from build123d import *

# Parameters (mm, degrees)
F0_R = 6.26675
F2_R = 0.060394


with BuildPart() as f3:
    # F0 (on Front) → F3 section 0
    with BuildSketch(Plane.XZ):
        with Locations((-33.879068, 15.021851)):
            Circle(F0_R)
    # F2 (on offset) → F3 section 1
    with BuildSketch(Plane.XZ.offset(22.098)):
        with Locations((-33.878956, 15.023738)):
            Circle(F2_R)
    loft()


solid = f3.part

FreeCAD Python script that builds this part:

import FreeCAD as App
import Part
import Sketcher
from FreeCAD import Vector
Q = App.Units.Quantity

doc = App.newDocument("Part")
body = doc.addObject("PartDesign::Body", "Body")

sketch1 = body.newObject("Sketcher::SketchObject", "Sketch")
sketch1.AttachmentSupport = (doc.getObject("XZ_Plane"), [""])
sketch1.MapMode = "FlatFace"
sketch1.addGeometry(Part.Circle(Vector(-34, 15, 0), Vector(0, 0, 1), 6), False)
sketch1.addConstraint([
    Sketcher.Constraint("Diameter", 0, Q("12.5335 mm")),
    Sketcher.Constraint("DistanceY", -1, 1, 0, 3, Q("15.021851 mm")),
    Sketcher.Constraint("DistanceX", 0, 3, -1, 1, Q("33.879068 mm")),
])

sketch2 = body.newObject("Sketcher::SketchObject", "Sketch001")
sketch2.AttachmentSupport = (doc.getObject("XZ_Plane"), [""])
sketch2.MapMode = "FlatFace"
sketch2.AttachmentOffset = App.Placement(Vector(0, 0, 22.098), App.Rotation())
sketch2.addGeometry(Part.Circle(Vector(-33.88, 15.02, 0), Vector(0, 0, 1), 0.06), False)
sketch2.addConstraint([
    Sketcher.Constraint("Diameter", 0, Q("0.120788 mm")),
    Sketcher.Constraint("DistanceX", 0, 3, -1, 1, Q("33.878956 mm")),
    Sketcher.Constraint("DistanceY", -1, 1, 0, 3, Q("15.023738 mm")),
])

additiveloft = body.newObject("PartDesign::AdditiveLoft", "AdditiveLoft")
additiveloft.Profile = sketch1
additiveloft.Sections = [sketch2]

doc.recompute()
